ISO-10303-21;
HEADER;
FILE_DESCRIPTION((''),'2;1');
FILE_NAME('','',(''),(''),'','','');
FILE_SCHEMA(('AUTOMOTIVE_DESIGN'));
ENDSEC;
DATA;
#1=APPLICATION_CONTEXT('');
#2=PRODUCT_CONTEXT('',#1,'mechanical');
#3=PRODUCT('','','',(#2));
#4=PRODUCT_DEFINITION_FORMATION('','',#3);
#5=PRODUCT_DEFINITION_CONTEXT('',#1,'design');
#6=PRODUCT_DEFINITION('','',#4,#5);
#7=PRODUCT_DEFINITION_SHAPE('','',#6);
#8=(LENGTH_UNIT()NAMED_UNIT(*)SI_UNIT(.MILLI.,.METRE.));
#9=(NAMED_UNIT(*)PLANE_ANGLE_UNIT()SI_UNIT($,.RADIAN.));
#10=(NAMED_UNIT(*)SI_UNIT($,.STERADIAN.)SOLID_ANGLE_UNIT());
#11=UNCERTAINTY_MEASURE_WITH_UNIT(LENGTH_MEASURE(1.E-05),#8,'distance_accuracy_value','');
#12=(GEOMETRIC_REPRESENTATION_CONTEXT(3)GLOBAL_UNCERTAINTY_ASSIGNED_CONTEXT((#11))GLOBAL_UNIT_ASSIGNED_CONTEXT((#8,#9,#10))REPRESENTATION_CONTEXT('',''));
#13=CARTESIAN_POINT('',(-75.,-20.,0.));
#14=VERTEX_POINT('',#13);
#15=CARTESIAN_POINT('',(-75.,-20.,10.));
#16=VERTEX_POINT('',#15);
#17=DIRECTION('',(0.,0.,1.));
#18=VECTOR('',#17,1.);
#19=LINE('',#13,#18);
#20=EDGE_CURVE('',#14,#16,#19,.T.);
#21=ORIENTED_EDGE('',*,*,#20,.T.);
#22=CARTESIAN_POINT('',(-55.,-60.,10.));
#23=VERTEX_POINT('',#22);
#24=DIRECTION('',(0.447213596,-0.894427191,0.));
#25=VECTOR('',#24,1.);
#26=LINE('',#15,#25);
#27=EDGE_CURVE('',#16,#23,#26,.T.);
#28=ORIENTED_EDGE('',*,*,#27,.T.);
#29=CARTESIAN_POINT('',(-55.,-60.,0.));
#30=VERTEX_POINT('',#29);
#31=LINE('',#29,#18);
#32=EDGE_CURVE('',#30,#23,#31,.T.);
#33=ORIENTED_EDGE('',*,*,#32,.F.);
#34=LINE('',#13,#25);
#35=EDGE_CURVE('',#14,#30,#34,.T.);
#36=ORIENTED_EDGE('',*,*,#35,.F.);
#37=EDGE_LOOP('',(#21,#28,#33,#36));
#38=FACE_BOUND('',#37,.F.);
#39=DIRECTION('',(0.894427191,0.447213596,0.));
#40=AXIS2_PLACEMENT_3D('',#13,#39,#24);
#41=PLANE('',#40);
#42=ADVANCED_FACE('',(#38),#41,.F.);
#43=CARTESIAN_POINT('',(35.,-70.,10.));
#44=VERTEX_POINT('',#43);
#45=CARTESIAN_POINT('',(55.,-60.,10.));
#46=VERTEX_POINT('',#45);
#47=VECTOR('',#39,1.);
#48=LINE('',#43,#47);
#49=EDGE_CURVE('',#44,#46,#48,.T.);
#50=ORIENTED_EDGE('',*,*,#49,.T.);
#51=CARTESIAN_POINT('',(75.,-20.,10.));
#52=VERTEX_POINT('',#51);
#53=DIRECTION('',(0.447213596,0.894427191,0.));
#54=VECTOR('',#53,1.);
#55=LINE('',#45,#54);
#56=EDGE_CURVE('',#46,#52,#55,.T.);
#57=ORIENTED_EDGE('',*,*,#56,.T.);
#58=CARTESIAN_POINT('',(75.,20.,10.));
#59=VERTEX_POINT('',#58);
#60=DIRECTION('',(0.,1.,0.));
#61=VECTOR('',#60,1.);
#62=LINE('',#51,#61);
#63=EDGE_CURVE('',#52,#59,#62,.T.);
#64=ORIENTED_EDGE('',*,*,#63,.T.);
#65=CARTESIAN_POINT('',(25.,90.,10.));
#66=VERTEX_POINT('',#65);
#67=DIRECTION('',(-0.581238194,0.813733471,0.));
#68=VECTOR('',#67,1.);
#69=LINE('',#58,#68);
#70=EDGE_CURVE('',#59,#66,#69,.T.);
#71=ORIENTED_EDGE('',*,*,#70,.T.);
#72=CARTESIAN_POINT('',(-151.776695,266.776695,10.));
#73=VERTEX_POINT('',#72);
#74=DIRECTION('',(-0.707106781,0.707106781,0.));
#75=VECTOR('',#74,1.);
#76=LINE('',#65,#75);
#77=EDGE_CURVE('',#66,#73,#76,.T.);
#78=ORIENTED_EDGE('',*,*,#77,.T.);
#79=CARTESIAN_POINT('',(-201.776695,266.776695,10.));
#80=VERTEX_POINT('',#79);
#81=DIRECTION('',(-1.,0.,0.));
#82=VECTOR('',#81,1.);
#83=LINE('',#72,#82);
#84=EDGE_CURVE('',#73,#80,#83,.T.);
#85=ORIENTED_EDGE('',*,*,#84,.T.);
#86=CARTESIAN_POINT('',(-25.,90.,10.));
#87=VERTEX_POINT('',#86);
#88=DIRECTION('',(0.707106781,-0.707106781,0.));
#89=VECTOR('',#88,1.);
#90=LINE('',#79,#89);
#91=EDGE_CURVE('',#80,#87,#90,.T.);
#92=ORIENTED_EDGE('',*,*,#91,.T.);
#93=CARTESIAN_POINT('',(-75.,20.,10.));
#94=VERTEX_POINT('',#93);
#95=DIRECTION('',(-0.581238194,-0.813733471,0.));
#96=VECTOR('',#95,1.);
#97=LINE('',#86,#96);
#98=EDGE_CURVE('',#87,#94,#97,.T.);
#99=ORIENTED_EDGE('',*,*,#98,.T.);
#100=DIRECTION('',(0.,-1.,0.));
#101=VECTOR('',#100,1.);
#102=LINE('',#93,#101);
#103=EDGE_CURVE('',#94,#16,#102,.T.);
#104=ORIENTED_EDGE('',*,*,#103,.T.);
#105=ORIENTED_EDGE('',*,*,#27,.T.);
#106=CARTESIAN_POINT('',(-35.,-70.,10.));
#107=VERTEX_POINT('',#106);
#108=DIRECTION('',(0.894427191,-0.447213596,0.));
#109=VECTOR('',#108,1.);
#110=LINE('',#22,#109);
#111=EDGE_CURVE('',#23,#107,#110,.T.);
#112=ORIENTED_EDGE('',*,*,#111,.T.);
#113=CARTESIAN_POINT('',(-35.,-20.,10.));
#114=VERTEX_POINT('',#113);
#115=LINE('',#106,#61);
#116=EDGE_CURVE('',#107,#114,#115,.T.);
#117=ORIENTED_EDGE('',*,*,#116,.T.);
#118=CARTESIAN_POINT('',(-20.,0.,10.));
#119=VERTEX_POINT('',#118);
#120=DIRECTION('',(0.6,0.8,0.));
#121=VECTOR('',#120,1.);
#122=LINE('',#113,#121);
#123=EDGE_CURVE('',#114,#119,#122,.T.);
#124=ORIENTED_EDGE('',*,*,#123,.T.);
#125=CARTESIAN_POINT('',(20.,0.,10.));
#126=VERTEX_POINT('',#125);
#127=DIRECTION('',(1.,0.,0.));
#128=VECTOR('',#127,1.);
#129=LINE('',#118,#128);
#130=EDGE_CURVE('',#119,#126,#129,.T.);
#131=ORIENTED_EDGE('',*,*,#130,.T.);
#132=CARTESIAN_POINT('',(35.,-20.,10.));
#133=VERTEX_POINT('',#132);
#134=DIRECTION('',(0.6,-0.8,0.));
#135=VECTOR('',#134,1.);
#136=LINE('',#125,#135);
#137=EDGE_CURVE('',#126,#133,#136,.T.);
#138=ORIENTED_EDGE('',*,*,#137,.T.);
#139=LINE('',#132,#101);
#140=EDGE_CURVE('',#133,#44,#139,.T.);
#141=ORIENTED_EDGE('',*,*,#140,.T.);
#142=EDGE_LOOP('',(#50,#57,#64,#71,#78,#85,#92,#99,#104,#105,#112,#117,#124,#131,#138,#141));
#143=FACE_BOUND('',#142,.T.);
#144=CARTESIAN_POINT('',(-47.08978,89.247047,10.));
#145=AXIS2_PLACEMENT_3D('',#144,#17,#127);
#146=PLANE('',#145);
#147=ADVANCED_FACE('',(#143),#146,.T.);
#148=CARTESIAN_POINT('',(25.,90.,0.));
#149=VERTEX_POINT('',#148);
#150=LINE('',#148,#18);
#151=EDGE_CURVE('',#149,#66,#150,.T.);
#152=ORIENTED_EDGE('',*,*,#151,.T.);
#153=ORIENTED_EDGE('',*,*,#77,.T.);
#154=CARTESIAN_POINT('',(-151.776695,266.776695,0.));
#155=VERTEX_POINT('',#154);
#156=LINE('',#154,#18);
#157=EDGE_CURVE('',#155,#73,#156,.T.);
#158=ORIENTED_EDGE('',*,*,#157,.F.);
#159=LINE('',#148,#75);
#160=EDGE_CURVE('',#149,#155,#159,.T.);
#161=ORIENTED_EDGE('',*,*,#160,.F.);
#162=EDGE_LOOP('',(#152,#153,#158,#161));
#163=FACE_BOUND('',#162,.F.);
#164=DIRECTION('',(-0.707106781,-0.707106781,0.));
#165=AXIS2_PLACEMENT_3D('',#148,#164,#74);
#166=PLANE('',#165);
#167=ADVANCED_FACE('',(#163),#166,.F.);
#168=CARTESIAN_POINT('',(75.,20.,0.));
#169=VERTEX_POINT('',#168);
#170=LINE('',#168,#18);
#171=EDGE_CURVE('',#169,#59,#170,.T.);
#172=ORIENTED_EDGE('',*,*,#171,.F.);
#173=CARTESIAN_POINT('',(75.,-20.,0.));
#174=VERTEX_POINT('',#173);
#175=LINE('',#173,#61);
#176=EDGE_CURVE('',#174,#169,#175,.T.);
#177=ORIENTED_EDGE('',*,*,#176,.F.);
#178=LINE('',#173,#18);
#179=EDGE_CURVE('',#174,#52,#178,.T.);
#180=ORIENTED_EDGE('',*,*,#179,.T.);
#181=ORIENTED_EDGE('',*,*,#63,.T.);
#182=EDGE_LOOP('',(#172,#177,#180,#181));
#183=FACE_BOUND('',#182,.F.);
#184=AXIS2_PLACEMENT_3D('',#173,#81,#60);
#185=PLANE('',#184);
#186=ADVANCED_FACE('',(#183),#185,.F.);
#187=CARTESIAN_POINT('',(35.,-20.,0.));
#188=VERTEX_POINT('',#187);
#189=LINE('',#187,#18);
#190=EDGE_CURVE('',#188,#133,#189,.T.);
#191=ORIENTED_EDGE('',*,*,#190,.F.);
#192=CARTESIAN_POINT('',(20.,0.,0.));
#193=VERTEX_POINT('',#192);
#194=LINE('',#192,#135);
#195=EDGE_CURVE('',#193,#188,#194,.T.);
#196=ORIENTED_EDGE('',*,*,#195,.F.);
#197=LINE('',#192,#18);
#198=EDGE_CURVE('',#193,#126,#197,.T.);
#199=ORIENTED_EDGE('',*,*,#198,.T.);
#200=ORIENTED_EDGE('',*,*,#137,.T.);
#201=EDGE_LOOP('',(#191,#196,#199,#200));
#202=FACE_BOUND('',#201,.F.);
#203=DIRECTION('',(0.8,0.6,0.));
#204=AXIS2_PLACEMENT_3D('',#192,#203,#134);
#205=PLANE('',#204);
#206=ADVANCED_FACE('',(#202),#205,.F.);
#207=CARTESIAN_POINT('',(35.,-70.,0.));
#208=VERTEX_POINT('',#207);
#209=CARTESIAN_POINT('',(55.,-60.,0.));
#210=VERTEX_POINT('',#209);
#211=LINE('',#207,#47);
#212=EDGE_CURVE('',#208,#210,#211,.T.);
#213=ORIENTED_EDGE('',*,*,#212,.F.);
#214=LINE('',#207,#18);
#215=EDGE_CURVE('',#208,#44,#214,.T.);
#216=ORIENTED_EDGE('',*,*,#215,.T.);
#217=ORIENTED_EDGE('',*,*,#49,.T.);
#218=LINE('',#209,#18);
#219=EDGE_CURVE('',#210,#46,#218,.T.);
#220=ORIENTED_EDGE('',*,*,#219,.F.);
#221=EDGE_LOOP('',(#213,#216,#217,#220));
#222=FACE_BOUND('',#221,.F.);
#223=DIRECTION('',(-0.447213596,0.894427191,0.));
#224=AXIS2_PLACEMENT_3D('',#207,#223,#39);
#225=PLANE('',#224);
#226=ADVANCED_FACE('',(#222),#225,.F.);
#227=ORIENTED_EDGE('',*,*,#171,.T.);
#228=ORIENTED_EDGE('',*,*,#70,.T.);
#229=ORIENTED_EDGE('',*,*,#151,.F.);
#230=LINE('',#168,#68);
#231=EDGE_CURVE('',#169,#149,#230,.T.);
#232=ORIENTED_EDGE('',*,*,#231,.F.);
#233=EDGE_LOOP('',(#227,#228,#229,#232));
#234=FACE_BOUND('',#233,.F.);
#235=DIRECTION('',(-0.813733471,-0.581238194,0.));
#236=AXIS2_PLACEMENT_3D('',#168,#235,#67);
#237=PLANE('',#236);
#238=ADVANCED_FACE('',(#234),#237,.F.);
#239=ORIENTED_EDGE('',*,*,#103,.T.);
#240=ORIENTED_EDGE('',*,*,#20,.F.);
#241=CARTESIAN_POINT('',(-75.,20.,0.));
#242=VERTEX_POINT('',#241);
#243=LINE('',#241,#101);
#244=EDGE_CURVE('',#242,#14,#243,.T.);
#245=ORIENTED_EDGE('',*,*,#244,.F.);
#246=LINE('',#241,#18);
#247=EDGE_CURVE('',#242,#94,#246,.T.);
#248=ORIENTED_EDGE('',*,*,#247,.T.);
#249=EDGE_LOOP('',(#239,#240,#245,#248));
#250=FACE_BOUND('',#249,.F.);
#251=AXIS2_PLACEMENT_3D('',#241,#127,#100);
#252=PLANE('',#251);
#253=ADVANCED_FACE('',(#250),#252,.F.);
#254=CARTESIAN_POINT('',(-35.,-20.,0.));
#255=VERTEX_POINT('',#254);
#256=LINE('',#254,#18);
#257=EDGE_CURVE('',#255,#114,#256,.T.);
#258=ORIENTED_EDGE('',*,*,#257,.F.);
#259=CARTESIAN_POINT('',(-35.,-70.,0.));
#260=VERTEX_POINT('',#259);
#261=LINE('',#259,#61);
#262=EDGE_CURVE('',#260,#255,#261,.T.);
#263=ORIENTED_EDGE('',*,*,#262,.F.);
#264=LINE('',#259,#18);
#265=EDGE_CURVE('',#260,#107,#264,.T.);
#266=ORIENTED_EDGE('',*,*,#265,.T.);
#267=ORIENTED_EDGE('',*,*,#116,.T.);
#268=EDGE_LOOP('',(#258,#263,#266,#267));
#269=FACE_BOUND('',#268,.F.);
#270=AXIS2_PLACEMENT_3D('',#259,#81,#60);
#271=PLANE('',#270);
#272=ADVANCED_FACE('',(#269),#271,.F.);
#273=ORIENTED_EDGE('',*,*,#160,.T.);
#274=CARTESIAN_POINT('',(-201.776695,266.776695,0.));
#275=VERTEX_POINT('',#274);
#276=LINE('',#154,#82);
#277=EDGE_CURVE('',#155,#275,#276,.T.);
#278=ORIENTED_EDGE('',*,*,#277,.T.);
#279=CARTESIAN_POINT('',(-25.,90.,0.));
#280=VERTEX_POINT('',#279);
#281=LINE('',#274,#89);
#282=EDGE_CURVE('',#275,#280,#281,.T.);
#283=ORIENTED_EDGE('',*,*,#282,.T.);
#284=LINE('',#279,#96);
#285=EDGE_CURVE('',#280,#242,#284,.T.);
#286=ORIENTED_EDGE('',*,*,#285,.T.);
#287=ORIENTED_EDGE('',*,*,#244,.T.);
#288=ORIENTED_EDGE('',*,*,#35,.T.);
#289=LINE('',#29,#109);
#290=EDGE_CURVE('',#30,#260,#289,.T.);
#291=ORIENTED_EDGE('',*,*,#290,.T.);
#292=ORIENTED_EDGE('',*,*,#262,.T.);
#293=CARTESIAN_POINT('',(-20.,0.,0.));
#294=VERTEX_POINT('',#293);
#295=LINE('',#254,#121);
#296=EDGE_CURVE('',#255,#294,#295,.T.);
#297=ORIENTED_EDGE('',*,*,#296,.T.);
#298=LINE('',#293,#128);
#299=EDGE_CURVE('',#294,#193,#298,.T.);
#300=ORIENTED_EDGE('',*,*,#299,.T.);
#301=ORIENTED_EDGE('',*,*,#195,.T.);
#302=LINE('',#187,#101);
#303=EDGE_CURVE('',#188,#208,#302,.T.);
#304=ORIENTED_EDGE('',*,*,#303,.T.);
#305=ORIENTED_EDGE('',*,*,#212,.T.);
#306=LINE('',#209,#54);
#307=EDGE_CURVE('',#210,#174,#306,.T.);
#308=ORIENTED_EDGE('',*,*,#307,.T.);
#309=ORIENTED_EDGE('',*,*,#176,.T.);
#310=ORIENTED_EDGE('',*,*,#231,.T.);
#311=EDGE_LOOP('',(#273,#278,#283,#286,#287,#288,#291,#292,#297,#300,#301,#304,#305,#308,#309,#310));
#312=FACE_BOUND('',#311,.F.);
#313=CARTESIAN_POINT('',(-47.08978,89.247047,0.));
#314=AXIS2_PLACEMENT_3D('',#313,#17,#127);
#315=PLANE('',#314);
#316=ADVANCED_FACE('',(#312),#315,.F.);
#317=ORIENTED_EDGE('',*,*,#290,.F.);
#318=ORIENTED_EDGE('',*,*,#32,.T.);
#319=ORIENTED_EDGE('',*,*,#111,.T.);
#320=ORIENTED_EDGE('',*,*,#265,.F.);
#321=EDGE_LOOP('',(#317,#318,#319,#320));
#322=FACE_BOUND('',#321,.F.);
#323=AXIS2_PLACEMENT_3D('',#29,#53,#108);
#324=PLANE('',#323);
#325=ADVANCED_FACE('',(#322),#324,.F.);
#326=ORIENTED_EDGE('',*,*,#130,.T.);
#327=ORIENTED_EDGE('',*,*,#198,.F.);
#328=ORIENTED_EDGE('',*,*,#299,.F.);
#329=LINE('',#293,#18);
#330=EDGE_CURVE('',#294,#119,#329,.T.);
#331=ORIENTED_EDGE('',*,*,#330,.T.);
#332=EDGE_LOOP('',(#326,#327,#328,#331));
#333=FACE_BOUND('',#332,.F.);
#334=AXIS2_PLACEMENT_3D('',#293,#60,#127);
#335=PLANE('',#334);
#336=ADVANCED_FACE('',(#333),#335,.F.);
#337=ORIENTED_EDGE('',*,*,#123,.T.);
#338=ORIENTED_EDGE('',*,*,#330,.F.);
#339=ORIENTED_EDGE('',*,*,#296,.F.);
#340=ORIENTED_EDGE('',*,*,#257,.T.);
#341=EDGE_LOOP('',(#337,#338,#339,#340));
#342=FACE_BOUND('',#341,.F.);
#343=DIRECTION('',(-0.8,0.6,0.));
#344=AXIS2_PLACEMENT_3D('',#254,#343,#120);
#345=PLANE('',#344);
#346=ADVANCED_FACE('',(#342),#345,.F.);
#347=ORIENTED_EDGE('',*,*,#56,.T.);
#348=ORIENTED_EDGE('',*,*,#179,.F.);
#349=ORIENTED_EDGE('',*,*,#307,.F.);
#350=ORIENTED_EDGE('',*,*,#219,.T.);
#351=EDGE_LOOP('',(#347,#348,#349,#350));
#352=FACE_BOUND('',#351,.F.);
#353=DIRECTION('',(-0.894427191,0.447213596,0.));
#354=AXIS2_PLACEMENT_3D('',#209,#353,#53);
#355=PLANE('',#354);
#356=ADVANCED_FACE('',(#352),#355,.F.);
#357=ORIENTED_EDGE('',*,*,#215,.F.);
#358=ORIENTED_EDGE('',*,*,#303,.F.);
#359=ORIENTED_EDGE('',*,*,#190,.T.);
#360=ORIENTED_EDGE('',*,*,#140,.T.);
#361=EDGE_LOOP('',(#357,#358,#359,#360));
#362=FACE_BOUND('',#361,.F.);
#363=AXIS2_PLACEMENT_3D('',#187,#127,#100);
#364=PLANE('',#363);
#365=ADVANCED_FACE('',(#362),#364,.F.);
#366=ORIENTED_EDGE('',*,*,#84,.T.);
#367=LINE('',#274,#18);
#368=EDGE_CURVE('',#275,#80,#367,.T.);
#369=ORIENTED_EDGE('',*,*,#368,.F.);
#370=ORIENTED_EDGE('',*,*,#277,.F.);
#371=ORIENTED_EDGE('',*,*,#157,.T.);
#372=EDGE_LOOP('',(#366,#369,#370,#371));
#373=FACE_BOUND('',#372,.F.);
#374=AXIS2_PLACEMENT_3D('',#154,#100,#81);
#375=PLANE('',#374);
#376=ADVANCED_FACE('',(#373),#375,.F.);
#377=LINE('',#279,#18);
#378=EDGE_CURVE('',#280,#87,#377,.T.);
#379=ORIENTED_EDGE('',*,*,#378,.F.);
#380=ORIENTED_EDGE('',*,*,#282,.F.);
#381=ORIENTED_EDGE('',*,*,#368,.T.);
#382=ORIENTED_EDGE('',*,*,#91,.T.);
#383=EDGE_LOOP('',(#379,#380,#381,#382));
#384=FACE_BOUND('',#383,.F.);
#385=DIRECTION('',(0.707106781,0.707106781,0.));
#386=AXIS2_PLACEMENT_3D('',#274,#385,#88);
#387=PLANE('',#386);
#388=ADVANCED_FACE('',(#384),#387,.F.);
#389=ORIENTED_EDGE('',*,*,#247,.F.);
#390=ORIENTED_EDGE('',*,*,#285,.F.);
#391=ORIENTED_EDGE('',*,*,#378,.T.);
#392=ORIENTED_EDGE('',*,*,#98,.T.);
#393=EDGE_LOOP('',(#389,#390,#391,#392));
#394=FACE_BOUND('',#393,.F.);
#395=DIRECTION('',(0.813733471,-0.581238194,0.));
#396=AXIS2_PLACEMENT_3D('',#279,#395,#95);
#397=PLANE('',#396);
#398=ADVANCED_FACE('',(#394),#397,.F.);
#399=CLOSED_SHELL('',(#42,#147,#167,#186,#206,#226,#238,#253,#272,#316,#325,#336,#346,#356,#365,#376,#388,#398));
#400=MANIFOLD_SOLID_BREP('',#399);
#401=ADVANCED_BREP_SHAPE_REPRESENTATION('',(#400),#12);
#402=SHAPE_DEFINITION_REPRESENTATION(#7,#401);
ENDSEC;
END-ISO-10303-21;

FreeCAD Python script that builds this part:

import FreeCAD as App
import Part
import Sketcher

V = App.Vector
Q = App.Units.Quantity


def add_polygon(sketch, points):
    """Adds a closed chain of lines whose ends are joined by coincident constraints."""
    first, n = sketch.GeometryCount, len(points)
    for a, b in zip(points, points[1:] + points[:1]):
        sketch.addGeometry(Part.LineSegment(App.Vector(*a, 0), App.Vector(*b, 0)), False)
    for i in range(n):
        sketch.addConstraint(Sketcher.Constraint("Coincident", first + i, 2, first + (i + 1) % n, 1))

doc = App.newDocument("Part")
body = doc.addObject("PartDesign::Body", "Body")

# Sketch on XY plane
sketch1 = body.newObject("Sketcher::SketchObject", "Sketch")
sketch1.AttachmentSupport = (doc.getObject("XY_Plane"), [""])
sketch1.MapMode = "FlatFace"
add_polygon(sketch1, [(-35, -20), (-20, 0), (20, 0), (35, -20), (35, -70), (55, -60), (75, -20), (75, 20), (25, 90), (-151.776695, 266.776695), (-201.776695, 266.776695), (-25, 90), (-75, 20), (-75, -20), (-55, -60), (-35, -70)])  # lines 0-15
sketch1.addConstraint([
    Sketcher.Constraint("Horizontal", 1),
    Sketcher.Constraint("Vertical", 3),
    Sketcher.Constraint("Vertical", 6),
    Sketcher.Constraint("Horizontal", 9),
    Sketcher.Constraint("Vertical", 12),
    Sketcher.Constraint("Vertical", 15),
    Sketcher.Constraint("Symmetric", 0, 2, 1, 2, -1, 1),
    Sketcher.Constraint("Symmetric", 5, 2, 11, 2, -1, 1),
    Sketcher.Constraint("Symmetric", 7, 2, 10, 2, -2),
    Sketcher.Constraint("Symmetric", 4, 2, 13, 2, -2),
    Sketcher.Constraint("Symmetric", 3, 2, 14, 2, -2),
    Sketcher.Constraint("Parallel", 8, 10),
    Sketcher.Constraint("Perpendicular", 4, 13),
    Sketcher.Constraint("Perpendicular", 5, 14),
    Sketcher.Constraint("Horizontal", 2, 2, 5, 2),
    Sketcher.Constraint("Horizontal", 6, 2, 11, 2),
    Sketcher.Constraint("Horizontal", 12, 2, 15, 2),
    Sketcher.Constraint("Equal", 9, 3),
    Sketcher.Constraint("Equal", 1, 6),
    Sketcher.Constraint("DistanceX", 1, 1, 1, 2, Q("40 mm")),
    Sketcher.Constraint("DistanceX", 9, 2, 9, 1, Q("50 mm")),
    Sketcher.Constraint("Angle", 8, Q("135 deg")),
    Sketcher.Constraint("Distance", 0, Q("25 mm")),
    Sketcher.Constraint("Distance", 8, Q("250 mm")),
    Sketcher.Constraint("DistanceX", -1, 1, 4, 2, Q("55 mm")),
    Sketcher.Constraint("DistanceY", 4, 2, -1, 1, Q("60 mm")),
    Sketcher.Constraint("DistanceY", -1, 1, 7, 2, Q("90 mm")),
])
pad1 = body.newObject("PartDesign::Pad", "Pad")
pad1.Profile = sketch1
pad1.Length = 10

doc.recompute()
